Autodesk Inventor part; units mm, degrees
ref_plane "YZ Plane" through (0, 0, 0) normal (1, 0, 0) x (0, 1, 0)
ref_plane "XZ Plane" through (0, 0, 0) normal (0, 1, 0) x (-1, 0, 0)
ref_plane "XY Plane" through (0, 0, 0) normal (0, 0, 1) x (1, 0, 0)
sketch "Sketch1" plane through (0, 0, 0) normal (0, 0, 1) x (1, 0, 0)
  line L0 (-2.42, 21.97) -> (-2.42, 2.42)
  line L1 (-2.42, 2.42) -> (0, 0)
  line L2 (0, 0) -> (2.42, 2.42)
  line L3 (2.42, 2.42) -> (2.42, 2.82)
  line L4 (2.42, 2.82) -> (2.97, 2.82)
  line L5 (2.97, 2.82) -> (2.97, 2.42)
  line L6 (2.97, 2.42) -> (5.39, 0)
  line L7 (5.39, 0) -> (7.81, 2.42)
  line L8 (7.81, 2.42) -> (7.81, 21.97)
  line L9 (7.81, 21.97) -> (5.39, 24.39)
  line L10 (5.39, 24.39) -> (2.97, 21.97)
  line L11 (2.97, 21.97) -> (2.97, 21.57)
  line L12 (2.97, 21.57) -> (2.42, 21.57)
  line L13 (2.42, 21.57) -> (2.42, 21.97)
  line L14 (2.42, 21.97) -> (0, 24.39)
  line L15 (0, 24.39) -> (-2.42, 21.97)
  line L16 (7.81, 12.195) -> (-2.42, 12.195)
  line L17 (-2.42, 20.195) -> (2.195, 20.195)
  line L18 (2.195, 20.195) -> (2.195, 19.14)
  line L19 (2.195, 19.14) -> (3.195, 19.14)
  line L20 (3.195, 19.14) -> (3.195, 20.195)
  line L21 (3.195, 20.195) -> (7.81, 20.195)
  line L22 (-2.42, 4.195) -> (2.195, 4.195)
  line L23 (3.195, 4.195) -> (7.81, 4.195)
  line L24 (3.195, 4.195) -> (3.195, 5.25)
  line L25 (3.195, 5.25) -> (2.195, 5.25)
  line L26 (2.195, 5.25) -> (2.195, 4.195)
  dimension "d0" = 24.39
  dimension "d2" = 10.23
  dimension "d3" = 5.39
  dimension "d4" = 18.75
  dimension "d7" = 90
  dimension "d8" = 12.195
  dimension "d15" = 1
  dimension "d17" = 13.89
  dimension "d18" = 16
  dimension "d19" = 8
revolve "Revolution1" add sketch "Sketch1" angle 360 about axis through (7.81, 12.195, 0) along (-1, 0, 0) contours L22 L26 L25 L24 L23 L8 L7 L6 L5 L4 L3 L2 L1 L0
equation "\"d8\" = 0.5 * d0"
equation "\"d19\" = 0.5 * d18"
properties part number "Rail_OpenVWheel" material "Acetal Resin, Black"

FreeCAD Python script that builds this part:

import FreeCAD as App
import Part
import Sketcher


def add_polygon(sketch, points):
    """Adds a closed chain of lines whose ends are joined by coincident constraints."""
    first, n = sketch.GeometryCount, len(points)
    for a, b in zip(points, points[1:] + points[:1]):
        sketch.addGeometry(Part.LineSegment(App.Vector(*a, 0), App.Vector(*b, 0)), False)
    for i in range(n):
        sketch.addConstraint(Sketcher.Constraint("Coincident", first + i, 2, first + (i + 1) % n, 1))

doc = App.newDocument("Part")
body = doc.addObject("PartDesign::Body", "Body")

# Sketch on XY plane
sketch1 = body.newObject("Sketcher::SketchObject", "Sketch")
sketch1.AttachmentSupport = (doc.getObject("XY_Plane"), [""])
sketch1.MapMode = "FlatFace"
add_polygon(sketch1, [(2.19, 4.2), (-2.42, 4.2), (-2.42, 2.42), (0, 0), (2.42, 2.42), (2.42, 2.82), (2.97, 2.82), (2.97, 2.42), (5.39, 0), (7.81, 2.42), (7.81, 4.2), (3.19, 4.2), (3.19, 5.25), (2.19, 5.25)])  # lines 0-13
sketch1.addGeometry(Part.LineSegment(App.Vector(7.81, 12.2, 0), App.Vector(-2.42, 12.2, 0)), True)  # axis
sketch1.addConstraint([
    Sketcher.Constraint("Horizontal", 0),
    Sketcher.Constraint("Vertical", 1),
    Sketcher.Constraint("Vertical", 4),
    Sketcher.Constraint("Horizontal", 5),
    Sketcher.Constraint("Vertical", 6),
    Sketcher.Constraint("Vertical", 9),
    Sketcher.Constraint("Horizontal", 10),
    Sketcher.Constraint("Vertical", 11),
    Sketcher.Constraint("Horizontal", 12),
    Sketcher.Constraint("Vertical", 13),
    Sketcher.Constraint("Horizontal", 14),
    Sketcher.Constraint("Coincident", 2, 2, -1, 1),
    Sketcher.Constraint("Symmetric", 1, 2, 3, 2, -2),
    Sketcher.Constraint("PointOnObject", 7, 2, -1),
    Sketcher.Constraint("Perpendicular", 2, 3),
    Sketcher.Constraint("Perpendicular", 3, 7),
    Sketcher.Constraint("Perpendicular", 7, 8),
    Sketcher.Constraint("Horizontal", 3, 2, 6, 2),
    Sketcher.Constraint("Horizontal", 6, 2, 8, 2),
    Sketcher.Constraint("Horizontal", 0, 2, 9, 2),
    Sketcher.Constraint("Vertical", 9, 2, 14, 1),
    Sketcher.Constraint("Vertical", 1, 2, 14, 2),
    Sketcher.Constraint("Equal", 0, 10),
    Sketcher.Constraint("DistanceX", 12, 2, 12, 1, 1.0),
    Sketcher.Constraint("DistanceY", 9, 2, 14, 1, 8.0),
    Sketcher.Constraint("DistanceX", 14, 2, 14, 1, 10.23),
    Sketcher.Constraint("DistanceX", -1, 1, 7, 2, 5.39),
    Sketcher.Constraint("DistanceY", 4, 1, 4, 2, 0.4),
    Sketcher.Constraint("DistanceY", -1, 1, 14, 1, 12.195),
    Sketcher.Constraint("DistanceY", 11, 1, 11, 2, 1.055),
])
revolution = body.newObject("PartDesign::Revolution", "Revolution")
revolution.Profile = sketch1
revolution.ReferenceAxis = (sketch1, ["Axis0"])
revolution.Angle = 360

doc.recompute()
